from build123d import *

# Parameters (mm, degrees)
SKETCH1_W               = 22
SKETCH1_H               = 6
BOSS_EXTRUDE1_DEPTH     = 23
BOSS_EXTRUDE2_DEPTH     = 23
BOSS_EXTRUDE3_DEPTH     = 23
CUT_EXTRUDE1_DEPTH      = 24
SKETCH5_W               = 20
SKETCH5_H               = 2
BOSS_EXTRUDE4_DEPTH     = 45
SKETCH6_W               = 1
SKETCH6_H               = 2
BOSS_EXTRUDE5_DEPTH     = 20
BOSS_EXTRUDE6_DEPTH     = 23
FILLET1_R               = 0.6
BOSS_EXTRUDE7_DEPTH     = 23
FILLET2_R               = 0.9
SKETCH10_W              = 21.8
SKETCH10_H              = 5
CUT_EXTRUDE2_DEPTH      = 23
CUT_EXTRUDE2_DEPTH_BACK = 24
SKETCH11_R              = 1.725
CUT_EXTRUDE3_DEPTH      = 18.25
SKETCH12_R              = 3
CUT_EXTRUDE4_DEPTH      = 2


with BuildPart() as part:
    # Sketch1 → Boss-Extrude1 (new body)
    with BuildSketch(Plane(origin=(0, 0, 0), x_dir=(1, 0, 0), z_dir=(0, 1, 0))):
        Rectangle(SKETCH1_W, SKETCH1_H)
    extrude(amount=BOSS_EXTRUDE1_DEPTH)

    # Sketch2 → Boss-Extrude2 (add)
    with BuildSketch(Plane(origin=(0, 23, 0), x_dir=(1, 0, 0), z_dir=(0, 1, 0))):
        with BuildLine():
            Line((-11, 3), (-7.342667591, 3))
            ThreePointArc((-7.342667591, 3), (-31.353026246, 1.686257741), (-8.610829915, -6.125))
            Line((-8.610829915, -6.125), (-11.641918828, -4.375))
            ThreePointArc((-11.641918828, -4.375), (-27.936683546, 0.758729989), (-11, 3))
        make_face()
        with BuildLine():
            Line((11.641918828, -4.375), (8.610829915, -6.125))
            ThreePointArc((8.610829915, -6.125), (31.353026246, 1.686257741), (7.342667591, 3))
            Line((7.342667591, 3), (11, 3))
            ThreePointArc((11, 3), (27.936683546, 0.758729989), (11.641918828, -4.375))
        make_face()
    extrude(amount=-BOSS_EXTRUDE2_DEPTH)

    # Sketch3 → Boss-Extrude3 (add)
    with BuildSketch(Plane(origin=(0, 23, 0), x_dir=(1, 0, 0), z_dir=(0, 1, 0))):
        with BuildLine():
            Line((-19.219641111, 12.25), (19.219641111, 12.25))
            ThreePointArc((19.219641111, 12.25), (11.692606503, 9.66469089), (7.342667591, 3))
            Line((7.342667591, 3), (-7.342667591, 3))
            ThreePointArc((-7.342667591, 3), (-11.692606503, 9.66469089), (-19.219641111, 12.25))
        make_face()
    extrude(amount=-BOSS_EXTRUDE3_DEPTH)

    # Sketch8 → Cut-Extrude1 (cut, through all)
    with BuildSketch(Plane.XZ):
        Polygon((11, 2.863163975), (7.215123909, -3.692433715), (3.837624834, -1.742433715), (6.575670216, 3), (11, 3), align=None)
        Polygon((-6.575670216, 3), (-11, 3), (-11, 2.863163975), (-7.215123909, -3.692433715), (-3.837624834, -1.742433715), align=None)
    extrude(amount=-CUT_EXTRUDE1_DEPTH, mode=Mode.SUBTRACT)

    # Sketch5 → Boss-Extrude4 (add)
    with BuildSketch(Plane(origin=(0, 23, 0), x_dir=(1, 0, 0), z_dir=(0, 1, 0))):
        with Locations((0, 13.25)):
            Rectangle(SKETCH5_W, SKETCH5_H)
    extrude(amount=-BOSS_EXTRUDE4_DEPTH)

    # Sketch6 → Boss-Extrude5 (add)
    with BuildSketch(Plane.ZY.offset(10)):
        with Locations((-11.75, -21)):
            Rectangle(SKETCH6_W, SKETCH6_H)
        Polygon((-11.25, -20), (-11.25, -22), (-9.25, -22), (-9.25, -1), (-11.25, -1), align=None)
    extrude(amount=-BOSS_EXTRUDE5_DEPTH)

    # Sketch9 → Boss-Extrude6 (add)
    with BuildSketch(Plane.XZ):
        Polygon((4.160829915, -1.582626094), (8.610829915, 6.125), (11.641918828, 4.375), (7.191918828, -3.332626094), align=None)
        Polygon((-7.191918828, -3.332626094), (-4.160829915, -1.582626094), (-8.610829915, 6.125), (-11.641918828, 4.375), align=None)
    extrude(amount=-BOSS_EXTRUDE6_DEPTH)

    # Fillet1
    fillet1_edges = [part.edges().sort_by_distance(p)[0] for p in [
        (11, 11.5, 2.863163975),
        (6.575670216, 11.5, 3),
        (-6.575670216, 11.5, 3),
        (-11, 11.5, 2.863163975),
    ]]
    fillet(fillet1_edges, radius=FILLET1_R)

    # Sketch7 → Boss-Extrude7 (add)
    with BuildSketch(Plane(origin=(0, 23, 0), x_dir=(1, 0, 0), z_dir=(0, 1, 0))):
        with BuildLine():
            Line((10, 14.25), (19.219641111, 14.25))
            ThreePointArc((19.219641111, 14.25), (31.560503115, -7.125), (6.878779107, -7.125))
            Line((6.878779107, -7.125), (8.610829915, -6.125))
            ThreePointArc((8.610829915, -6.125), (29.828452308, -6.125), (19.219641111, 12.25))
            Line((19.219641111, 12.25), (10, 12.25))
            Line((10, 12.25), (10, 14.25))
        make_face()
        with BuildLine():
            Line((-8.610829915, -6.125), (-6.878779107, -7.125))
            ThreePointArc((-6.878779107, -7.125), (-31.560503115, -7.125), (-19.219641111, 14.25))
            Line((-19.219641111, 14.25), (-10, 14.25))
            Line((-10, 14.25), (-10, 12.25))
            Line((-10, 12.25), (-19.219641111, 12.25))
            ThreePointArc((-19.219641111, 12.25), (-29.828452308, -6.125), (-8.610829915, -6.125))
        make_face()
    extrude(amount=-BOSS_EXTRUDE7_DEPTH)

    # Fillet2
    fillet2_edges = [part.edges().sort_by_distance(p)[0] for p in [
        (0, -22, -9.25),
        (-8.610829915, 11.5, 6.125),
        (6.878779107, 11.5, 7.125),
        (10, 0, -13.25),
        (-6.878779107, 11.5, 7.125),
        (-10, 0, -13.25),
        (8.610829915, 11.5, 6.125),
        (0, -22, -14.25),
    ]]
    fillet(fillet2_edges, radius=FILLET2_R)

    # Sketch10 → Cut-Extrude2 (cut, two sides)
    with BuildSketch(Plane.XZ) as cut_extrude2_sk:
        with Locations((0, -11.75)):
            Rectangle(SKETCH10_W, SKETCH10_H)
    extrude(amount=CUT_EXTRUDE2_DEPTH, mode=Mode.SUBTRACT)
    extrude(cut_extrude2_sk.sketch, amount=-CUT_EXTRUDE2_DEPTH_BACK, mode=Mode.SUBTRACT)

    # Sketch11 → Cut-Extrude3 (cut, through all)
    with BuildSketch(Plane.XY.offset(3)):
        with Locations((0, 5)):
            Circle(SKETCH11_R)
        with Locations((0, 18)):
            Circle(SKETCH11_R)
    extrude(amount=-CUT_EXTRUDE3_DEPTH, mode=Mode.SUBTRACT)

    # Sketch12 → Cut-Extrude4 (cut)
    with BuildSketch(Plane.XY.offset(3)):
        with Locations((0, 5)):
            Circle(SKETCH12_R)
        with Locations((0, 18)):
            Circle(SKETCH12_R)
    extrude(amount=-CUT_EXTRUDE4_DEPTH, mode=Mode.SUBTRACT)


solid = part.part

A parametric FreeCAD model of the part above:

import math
import FreeCAD as App
import Part
import Sketcher

V = App.Vector
Q = App.Units.Quantity


def edges_at(feature, points):
    """Names of the edges that pass closest to the given points."""
    edges = feature.Shape.Edges
    near = lambda p: min(range(len(edges)), key=lambda i: edges[i].distToShape(Part.Vertex(*p))[0])
    return sorted({f"Edge{near(p) + 1}" for p in points})


def add_polygon(sketch, points):
    """Adds a closed chain of lines whose ends are joined by coincident constraints."""
    first, n = sketch.GeometryCount, len(points)
    for a, b in zip(points, points[1:] + points[:1]):
        sketch.addGeometry(Part.LineSegment(App.Vector(*a, 0), App.Vector(*b, 0)), False)
    for i in range(n):
        sketch.addConstraint(Sketcher.Constraint("Coincident", first + i, 2, first + (i + 1) % n, 1))

doc = App.newDocument("Part")
body = doc.addObject("PartDesign::Body", "Body")

# Sketch on XZ plane
sketch1 = body.newObject("Sketcher::SketchObject", "Sketch")
sketch1.AttachmentSupport = (doc.getObject("XZ_Plane"), [""])
sketch1.MapMode = "FlatFace"
add_polygon(sketch1, [(-11, -3), (-11, 3), (11, 3), (11, -3)])  # lines 0-3
sketch1.addConstraint([
    Sketcher.Constraint("Vertical", 0),
    Sketcher.Constraint("Horizontal", 1),
    Sketcher.Constraint("Vertical", 2),
    Sketcher.Constraint("Horizontal", 3),
    Sketcher.Constraint("Symmetric", 0, 2, 2, 2, -1, 1),
    Sketcher.Constraint("DistanceX", 1, 1, 1, 2, Q("22 mm")),
    Sketcher.Constraint("DistanceY", 0, 1, 0, 2, Q("6 mm")),
])
pad1 = body.newObject("PartDesign::Pad", "Pad")
pad1.Profile = sketch1
pad1.Length = 23
pad1.Reversed = True

# Sketch on XZ plane
sketch2 = body.newObject("Sketcher::SketchObject", "Sketch001")
sketch2.AttachmentSupport = (doc.getObject("XZ_Plane"), [""])
sketch2.MapMode = "FlatFace"
sketch2.AttachmentOffset = App.Placement(V(0, 0, -23), App.Rotation())
sketch2.addGeometry([
    Part.LineSegment(V(-11, -3, 0), V(-7.342668, -3, 0)),  # 0
    Part.ArcOfCircle(Part.Circle(V(-19.219641, 0, 0), V(0, 0, 1), 12.25), math.radians(30), math.radians(345.824196)),  # 1
    Part.LineSegment(V(-8.61083, 6.125, 0), V(-11.641919, 4.375, 0)),  # 2
    Part.ArcOfCircle(Part.Circle(V(-19.219641, 0, 0), V(0, 0, 1), 8.75), math.radians(30), math.radians(339.948957)),  # 3
    Part.LineSegment(V(11.641919, 4.375, 0), V(8.61083, 6.125, 0)),  # 4
    Part.ArcOfCircle(Part.Circle(V(19.219641, 0, 0), V(0, 0, 1), 12.25), math.radians(-165.824196), math.radians(150)),  # 5
    Part.LineSegment(V(7.342668, -3, 0), V(11, -3, 0)),  # 6
    Part.ArcOfCircle(Part.Circle(V(19.219641, 0, 0), V(0, 0, 1), 8.75), math.radians(-159.948957), math.radians(150)),  # 7
], False)
sketch2.addConstraint([
    Sketcher.Constraint("Coincident", 0, 2, 1, 2),
    Sketcher.Constraint("Coincident", 1, 1, 2, 1),
    Sketcher.Constraint("Coincident", 2, 2, 3, 1),
    Sketcher.Constraint("Coincident", 3, 2, 0, 1),
    Sketcher.Constraint("Coincident", 4, 2, 5, 2),
    Sketcher.Constraint("Coincident", 5, 1, 6, 1),
    Sketcher.Constraint("Coincident", 6, 2, 7, 1),
    Sketcher.Constraint("Coincident", 7, 2, 4, 1),
    Sketcher.Constraint("Horizontal", 0),
    Sketcher.Constraint("Horizontal", 6),
    Sketcher.Constraint("Coincident", 3, 3, 1, 3),
    Sketcher.Constraint("Coincident", 7, 3, 5, 3),
    Sketcher.Constraint("Equal", 1, 5),
    Sketcher.Constraint("Equal", 3, 7),
    Sketcher.Constraint("Symmetric", 1, 3, 5, 3, -1, 1),
    Sketcher.Constraint("Symmetric", 1, 1, 4, 2, -2),
    Sketcher.Constraint("Horizontal", 3, 2, 5, 1),
    Sketcher.Constraint("Horizontal", 2, 2, 7, 2),
    Sketcher.Constraint("Angle", 2, Q("-150 deg")),
    Sketcher.Constraint("Radius", 1, Q("12.25 mm")),
    Sketcher.Constraint("Radius", 3, Q("8.75 mm")),
    Sketcher.Constraint("DistanceY", 0, 2, -1, 1, Q("3 mm")),
    Sketcher.Constraint("DistanceX", 3, 2, -1, 1, Q("11 mm")),
    Sketcher.Constraint("DistanceY", -1, 1, 1, 1, Q("6.125 mm")),
])
pad2 = body.newObject("PartDesign::Pad", "Pad001")
pad2.Profile = sketch2
pad2.Length = 23

# Sketch on XZ plane
sketch3 = body.newObject("Sketcher::SketchObject", "Sketch002")
sketch3.AttachmentSupport = (doc.getObject("XZ_Plane"), [""])
sketch3.MapMode = "FlatFace"
sketch3.AttachmentOffset = App.Placement(V(0, 0, -23), App.Rotation())
sketch3.addGeometry([
    Part.LineSegment(V(19.219641, -12.25, 0), V(-19.219641, -12.25, 0)),
    Part.ArcOfCircle(Part.Circle(V(-19.219641, 0, 0), V(0, 0, 1), 12.25), math.radians(-90), math.radians(-14.175804)),
    Part.LineSegment(V(-7.342668, -3, 0), V(7.342668, -3, 0)),
    Part.ArcOfCircle(Part.Circle(V(19.219641, 0, 0), V(0, 0, 1), 12.25), math.radians(-165.824196), math.radians(-90)),
], False)
sketch3.addConstraint([
    Sketcher.Constraint("Tangent", 0, 2, 1, 1),
    Sketcher.Constraint("Coincident", 1, 2, 2, 1),
    Sketcher.Constraint("Coincident", 2, 2, 3, 1),
    Sketcher.Constraint("Tangent", 3, 2, 0, 1),
    Sketcher.Constraint("Horizontal", 0),
    Sketcher.Constraint("Horizontal", 2),
    Sketcher.Constraint("Equal", 1, 3),
    Sketcher.Constraint("Symmetric", 1, 3, 3, 3, -1, 1),
    Sketcher.Constraint("Radius", 1, Q("12.25 mm")),
    Sketcher.Constraint("DistanceY", 1, 2, -1, 1, Q("3 mm")),
    Sketcher.Constraint("DistanceX", 0, 2, 0, 1, Q("38.439282 mm")),
])
pad3 = body.newObject("PartDesign::Pad", "Pad002")
pad3.Profile = sketch3
pad3.Length = 23

# Sketch on XZ plane
sketch4 = body.newObject("Sketcher::SketchObject", "Sketch003")
sketch4.AttachmentSupport = (doc.getObject("XZ_Plane"), [""])
sketch4.MapMode = "FlatFace"
add_polygon(sketch4, [(7.215124, -3.692434), (11, 2.863164), (11, 3), (6.57567, 3), (3.837625, -1.742434)])  # lines 0-4
add_polygon(sketch4, [(-6.57567, 3), (-11, 3), (-11, 2.863164), (-7.215124, -3.692434), (-3.837625, -1.742434)])  # lines 5-9
sketch4.addConstraint([
    Sketcher.Constraint("Vertical", 1),
    Sketcher.Constraint("Horizontal", 2),
    Sketcher.Constraint("Horizontal", 5),
    Sketcher.Constraint("Vertical", 6),
    Sketcher.Constraint("Symmetric", 1, 2, 5, 2, -2),
    Sketcher.Constraint("Symmetric", 4, 2, 7, 2, -2),
    Sketcher.Constraint("Symmetric", 3, 2, 8, 2, -2),
    Sketcher.Constraint("Parallel", 0, 3),
    Sketcher.Constraint("Perpendicular", 3, 4),
    Sketcher.Constraint("Perpendicular", 7, 8),
    Sketcher.Constraint("Perpendicular", 8, 9),
    Sketcher.Constraint("Angle", 0, Q("60 deg")),
    Sketcher.Constraint("DistanceX", -1, 1, 0, 2, Q("11 mm")),
    Sketcher.Constraint("DistanceY", -1, 1, 1, 2, Q("3 mm")),
    Sketcher.Constraint("Distance", 4, Q("3.9 mm")),
    Sketcher.Constraint("DistanceX", 2, 2, 2, 1, Q("4.42433 mm")),
    Sketcher.Constraint("Distance", 3, Q("5.476091 mm")),
])
pocket1 = body.newObject("PartDesign::Pocket", "Pocket")
pocket1.Profile = sketch4
pocket1.Type = "ThroughAll"

# Sketch on XZ plane
sketch5 = body.newObject("Sketcher::SketchObject", "Sketch004")
sketch5.AttachmentSupport = (doc.getObject("XZ_Plane"), [""])
sketch5.MapMode = "FlatFace"
sketch5.AttachmentOffset = App.Placement(V(0, 0, -23), App.Rotation())
add_polygon(sketch5, [(-10, -14.25), (-10, -12.25), (10, -12.25), (10, -14.25)])  # lines 0-3
sketch5.addConstraint([
    Sketcher.Constraint("Vertical", 0),
    Sketcher.Constraint("Horizontal", 1),
    Sketcher.Constraint("Vertical", 2),
    Sketcher.Constraint("Horizontal", 3),
    Sketcher.Constraint("DistanceX", 1, 1, 1, 2, Q("20 mm")),
    Sketcher.Constraint("DistanceY", 0, 1, 0, 2, Q("2 mm")),
    Sketcher.Constraint("DistanceX", 0, 2, -1, 1, Q("10 mm")),
    Sketcher.Constraint("DistanceY", 0, 2, -1, 1, Q("12.25 mm")),
])
pad4 = body.newObject("PartDesign::Pad", "Pad003")
pad4.Profile = sketch5
pad4.Length = 45

# Sketch on YZ plane
sketch6 = body.newObject("Sketcher::SketchObject", "Sketch005")
sketch6.AttachmentSupport = (doc.getObject("YZ_Plane"), [""])
sketch6.MapMode = "FlatFace"
sketch6.AttachmentOffset = App.Placement(V(0, 0, -10), App.Rotation())
add_polygon(sketch6, [(-20, -12.25), (-22, -12.25), (-22, -9.25), (-1, -9.25), (-1, -11.25), (-20, -11.25)])  # lines 0-5
sketch6.addConstraint([
    Sketcher.Constraint("Horizontal", 0),
    Sketcher.Constraint("Vertical", 1),
    Sketcher.Constraint("Horizontal", 2),
    Sketcher.Constraint("Vertical", 3),
    Sketcher.Constraint("Horizontal", 4),
    Sketcher.Constraint("Vertical", 5),
    Sketcher.Constraint("Equal", 0, 3),
    Sketcher.Constraint("DistanceX", 0, 2, 0, 1, Q("2 mm")),
    Sketcher.Constraint("DistanceX", 2, 1, 2, 2, Q("21 mm")),
    Sketcher.Constraint("DistanceY", 1, 1, 1, 2, Q("3 mm")),
    Sketcher.Constraint("DistanceX", 0, 2, -1, 1, Q("22 mm")),
    Sketcher.Constraint("DistanceY", 0, 2, -1, 1, Q("12.25 mm")),
])
pad5 = body.newObject("PartDesign::Pad", "Pad004")
pad5.Profile = sketch6
pad5.Length = 20

# Sketch on XZ plane
sketch7 = body.newObject("Sketcher::SketchObject", "Sketch006")
sketch7.AttachmentSupport = (doc.getObject("XZ_Plane"), [""])
sketch7.MapMode = "FlatFace"
add_polygon(sketch7, [(8.61083, 6.125), (4.16083, -1.582626), (7.191919, -3.332626), (11.641919, 4.375)])  # lines 0-3
add_polygon(sketch7, [(-7.191919, -3.332626), (-4.16083, -1.582626), (-8.61083, 6.125), (-11.641919, 4.375)])  # lines 4-7
sketch7.addConstraint([
    Sketcher.Constraint("Symmetric", 0, 2, 4, 2, -2),
    Sketcher.Constraint("Symmetric", 3, 2, 5, 2, -2),
    Sketcher.Constraint("Symmetric", 2, 2, 6, 2, -2),
    Sketcher.Constraint("Symmetric", 1, 2, 7, 2, -2),
    Sketcher.Constraint("Perpendicular", 0, 1),
    Sketcher.Constraint("Perpendicular", 1, 2),
    Sketcher.Constraint("Perpendicular", 2, 3),
    Sketcher.Constraint("Angle", 0, Q("-120 deg")),
    Sketcher.Constraint("Distance", 0, Q("8.9 mm")),
    Sketcher.Constraint("Distance", 1, Q("3.5 mm")),
    Sketcher.Constraint("DistanceY", -1, 1, 2, 2, Q("4.375 mm")),
    Sketcher.Constraint("DistanceX", -1, 1, 0, 2, Q("4.16083 mm")),
])
pad6 = body.newObject("PartDesign::Pad", "Pad005")
pad6.Profile = sketch7
pad6.Length = 23
pad6.Reversed = True
doc.recompute()

fillet = body.newObject("PartDesign::Fillet", "Fillet")
fillet.Base = (pad6, edges_at(pad6, [
    (11, 11.5, 2.863),
    (6.576, 11.5, 3),
    (-6.576, 11.5, 3),
    (-11, 11.5, 2.863),
]))
fillet.Radius = 0.6

# Sketch on XZ plane
sketch8 = body.newObject("Sketcher::SketchObject", "Sketch007")
sketch8.AttachmentSupport = (doc.getObject("XZ_Plane"), [""])
sketch8.MapMode = "FlatFace"
sketch8.AttachmentOffset = App.Placement(V(0, 0, -23), App.Rotation())
sketch8.addGeometry([
    Part.LineSegment(V(19.219641, -14.25, 0), V(10, -14.25, 0)),  # 0
    Part.LineSegment(V(10, -14.25, 0), V(10, -12.25, 0)),  # 1
    Part.LineSegment(V(10, -12.25, 0), V(19.219641, -12.25, 0)),  # 2
    Part.ArcOfCircle(Part.Circle(V(19.219641, 0, 0), V(0, 0, 1), 12.25), math.radians(-90), math.radians(150)),  # 3
    Part.LineSegment(V(8.61083, 6.125, 0), V(6.878779, 7.125, 0)),  # 4
    Part.ArcOfCircle(Part.Circle(V(19.219641, 0, 0), V(0, 0, 1), 14.25), math.radians(-90), math.radians(150)),  # 5
    Part.LineSegment(V(-6.878779, 7.125, 0), V(-8.61083, 6.125, 0)),  # 6
    Part.ArcOfCircle(Part.Circle(V(-19.219641, 0, 0), V(0, 0, 1), 12.25), math.radians(30), math.radians(270)),  # 7
    Part.LineSegment(V(-19.219641, -12.25, 0), V(-10, -12.25, 0)),  # 8
    Part.LineSegment(V(-10, -12.25, 0), V(-10, -14.25, 0)),  # 9
    Part.LineSegment(V(-10, -14.25, 0), V(-19.219641, -14.25, 0)),  # 10
    Part.ArcOfCircle(Part.Circle(V(-19.219641, 0, 0), V(0, 0, 1), 14.25), math.radians(30), math.radians(270)),  # 11
], False)
sketch8.addConstraint([
    Sketcher.Constraint("Coincident", 0, 2, 1, 1),
    Sketcher.Constraint("Coincident", 1, 2, 2, 1),
    Sketcher.Constraint("Tangent", 2, 2, 3, 1),
    Sketcher.Constraint("Coincident", 3, 2, 4, 1),
    Sketcher.Constraint("Coincident", 4, 2, 5, 2),
    Sketcher.Constraint("Tangent", 5, 1, 0, 1),
    Sketcher.Constraint("Coincident", 6, 2, 7, 1),
    Sketcher.Constraint("Tangent", 7, 2, 8, 1),
    Sketcher.Constraint("Coincident", 8, 2, 9, 1),
    Sketcher.Constraint("Coincident", 9, 2, 10, 1),
    Sketcher.Constraint("Tangent", 10, 2, 11, 2),
    Sketcher.Constraint("Coincident", 11, 1, 6, 1),
    Sketcher.Constraint("Horizontal", 0),
    Sketcher.Constraint("Vertical", 1),
    Sketcher.Constraint("Horizontal", 2),
    Sketcher.Constraint("Horizontal", 8),
    Sketcher.Constraint("Vertical", 9),
    Sketcher.Constraint("Horizontal", 10),
    Sketcher.Constraint("Coincident", 5, 3, 3, 3),
    Sketcher.Constraint("Coincident", 11, 3, 7, 3),
    Sketcher.Constraint("Equal", 3, 7),
    Sketcher.Constraint("Equal", 5, 11),
    Sketcher.Constraint("Symmetric", 3, 3, 7, 3, -1, 1),
    Sketcher.Constraint("Symmetric", 3, 2, 6, 2, -2),
    Sketcher.Constraint("Horizontal", 4, 2, 11, 1),
    Sketcher.Constraint("Equal", 2, 8),
    Sketcher.Constraint("DistanceY", 1, 1, 1, 2, Q("2 mm")),
    Sketcher.Constraint("Angle", 4, Q("150 deg")),
    Sketcher.Constraint("Radius", 3, Q("12.25 mm")),
    Sketcher.Constraint("DistanceX", -1, 1, 0, 2, Q("10 mm")),
    Sketcher.Constraint("DistanceY", -1, 1, 3, 2, Q("6.125 mm")),
    Sketcher.Constraint("DistanceX", 0, 2, 0, 1, Q("9.219641 mm")),
])
pad7 = body.newObject("PartDesign::Pad", "Pad006")
pad7.Profile = sketch8
pad7.Length = 23
doc.recompute()

fillet2 = body.newObject("PartDesign::Fillet", "Fillet001")
fillet2.Base = (pad7, edges_at(pad7, [
    (0, -22, -9.25),
    (-8.611, 11.5, 6.125),
    (6.879, 11.5, 7.125),
    (10, 0, -13.25),
    (-6.879, 11.5, 7.125),
    (-10, 0, -13.25),
    (8.611, 11.5, 6.125),
    (0, -22, -14.25),
]))
fillet2.Radius = 0.9

# Sketch on XZ plane
sketch9 = body.newObject("Sketcher::SketchObject", "Sketch008")
sketch9.AttachmentSupport = (doc.getObject("XZ_Plane"), [""])
sketch9.MapMode = "FlatFace"
add_polygon(sketch9, [(-10.9, -9.25), (-10.9, -14.25), (10.9, -14.25), (10.9, -9.25)])  # lines 0-3
sketch9.addConstraint([
    Sketcher.Constraint("Vertical", 0),
    Sketcher.Constraint("Horizontal", 1),
    Sketcher.Constraint("Vertical", 2),
    Sketcher.Constraint("Horizontal", 3),
    Sketcher.Constraint("DistanceY", 0, 2, 0, 1, Q("5 mm")),
    Sketcher.Constraint("DistanceX", 1, 1, 1, 2, Q("21.8 mm")),
    Sketcher.Constraint("DistanceX", 0, 2, -1, 1, Q("10.9 mm")),
    Sketcher.Constraint("DistanceY", 0, 2, -1, 1, Q("14.25 mm")),
])
pocket2 = body.newObject("PartDesign::Pocket", "Pocket001")
pocket2.Profile = sketch9
pocket2.Type = "ThroughAll"
pocket2.Midplane = True

# Sketch on XY plane
sketch10 = body.newObject("Sketcher::SketchObject", "Sketch009")
sketch10.AttachmentSupport = (doc.getObject("XY_Plane"), [""])
sketch10.MapMode = "FlatFace"
sketch10.AttachmentOffset = App.Placement(V(0, 0, 3), App.Rotation())
sketch10.addGeometry([
    Part.Circle(V(0, 5, 0), V(0, 0, 1), 1.725),
    Part.Circle(V(0, 18, 0), V(0, 0, 1), 1.725),
], False)
sketch10.addConstraint([
    Sketcher.Constraint("Equal", 0, 1),
    Sketcher.Constraint("PointOnObject", 0, 3, -2),
    Sketcher.Constraint("PointOnObject", 1, 3, -2),
    Sketcher.Constraint("Diameter", 0, Q("3.45 mm")),
    Sketcher.Constraint("DistanceY", -1, 1, 0, 3, Q("5 mm")),
    Sketcher.Constraint("DistanceY", -1, 1, 1, 3, Q("18 mm")),
])
pocket3 = body.newObject("PartDesign::Pocket", "Pocket002")
pocket3.Profile = sketch10
pocket3.Type = "ThroughAll"

# Sketch on XY plane
sketch11 = body.newObject("Sketcher::SketchObject", "Sketch010")
sketch11.AttachmentSupport = (doc.getObject("XY_Plane"), [""])
sketch11.MapMode = "FlatFace"
sketch11.AttachmentOffset = App.Placement(V(0, 0, 3), App.Rotation())
sketch11.addGeometry([
    Part.Circle(V(0, 5, 0), V(0, 0, 1), 3),
    Part.Circle(V(0, 18, 0), V(0, 0, 1), 3),
], False)
sketch11.addConstraint([
    Sketcher.Constraint("Equal", 0, 1),
    Sketcher.Constraint("PointOnObject", 0, 3, -2),
    Sketcher.Constraint("PointOnObject", 1, 3, -2),
    Sketcher.Constraint("Diameter", 0, Q("6 mm")),
    Sketcher.Constraint("DistanceY", -1, 1, 0, 3, Q("5 mm")),
    Sketcher.Constraint("DistanceY", -1, 1, 1, 3, Q("18 mm")),
])
pocket4 = body.newObject("PartDesign::Pocket", "Pocket003")
pocket4.Profile = sketch11
pocket4.Length = 2

doc.recompute()
